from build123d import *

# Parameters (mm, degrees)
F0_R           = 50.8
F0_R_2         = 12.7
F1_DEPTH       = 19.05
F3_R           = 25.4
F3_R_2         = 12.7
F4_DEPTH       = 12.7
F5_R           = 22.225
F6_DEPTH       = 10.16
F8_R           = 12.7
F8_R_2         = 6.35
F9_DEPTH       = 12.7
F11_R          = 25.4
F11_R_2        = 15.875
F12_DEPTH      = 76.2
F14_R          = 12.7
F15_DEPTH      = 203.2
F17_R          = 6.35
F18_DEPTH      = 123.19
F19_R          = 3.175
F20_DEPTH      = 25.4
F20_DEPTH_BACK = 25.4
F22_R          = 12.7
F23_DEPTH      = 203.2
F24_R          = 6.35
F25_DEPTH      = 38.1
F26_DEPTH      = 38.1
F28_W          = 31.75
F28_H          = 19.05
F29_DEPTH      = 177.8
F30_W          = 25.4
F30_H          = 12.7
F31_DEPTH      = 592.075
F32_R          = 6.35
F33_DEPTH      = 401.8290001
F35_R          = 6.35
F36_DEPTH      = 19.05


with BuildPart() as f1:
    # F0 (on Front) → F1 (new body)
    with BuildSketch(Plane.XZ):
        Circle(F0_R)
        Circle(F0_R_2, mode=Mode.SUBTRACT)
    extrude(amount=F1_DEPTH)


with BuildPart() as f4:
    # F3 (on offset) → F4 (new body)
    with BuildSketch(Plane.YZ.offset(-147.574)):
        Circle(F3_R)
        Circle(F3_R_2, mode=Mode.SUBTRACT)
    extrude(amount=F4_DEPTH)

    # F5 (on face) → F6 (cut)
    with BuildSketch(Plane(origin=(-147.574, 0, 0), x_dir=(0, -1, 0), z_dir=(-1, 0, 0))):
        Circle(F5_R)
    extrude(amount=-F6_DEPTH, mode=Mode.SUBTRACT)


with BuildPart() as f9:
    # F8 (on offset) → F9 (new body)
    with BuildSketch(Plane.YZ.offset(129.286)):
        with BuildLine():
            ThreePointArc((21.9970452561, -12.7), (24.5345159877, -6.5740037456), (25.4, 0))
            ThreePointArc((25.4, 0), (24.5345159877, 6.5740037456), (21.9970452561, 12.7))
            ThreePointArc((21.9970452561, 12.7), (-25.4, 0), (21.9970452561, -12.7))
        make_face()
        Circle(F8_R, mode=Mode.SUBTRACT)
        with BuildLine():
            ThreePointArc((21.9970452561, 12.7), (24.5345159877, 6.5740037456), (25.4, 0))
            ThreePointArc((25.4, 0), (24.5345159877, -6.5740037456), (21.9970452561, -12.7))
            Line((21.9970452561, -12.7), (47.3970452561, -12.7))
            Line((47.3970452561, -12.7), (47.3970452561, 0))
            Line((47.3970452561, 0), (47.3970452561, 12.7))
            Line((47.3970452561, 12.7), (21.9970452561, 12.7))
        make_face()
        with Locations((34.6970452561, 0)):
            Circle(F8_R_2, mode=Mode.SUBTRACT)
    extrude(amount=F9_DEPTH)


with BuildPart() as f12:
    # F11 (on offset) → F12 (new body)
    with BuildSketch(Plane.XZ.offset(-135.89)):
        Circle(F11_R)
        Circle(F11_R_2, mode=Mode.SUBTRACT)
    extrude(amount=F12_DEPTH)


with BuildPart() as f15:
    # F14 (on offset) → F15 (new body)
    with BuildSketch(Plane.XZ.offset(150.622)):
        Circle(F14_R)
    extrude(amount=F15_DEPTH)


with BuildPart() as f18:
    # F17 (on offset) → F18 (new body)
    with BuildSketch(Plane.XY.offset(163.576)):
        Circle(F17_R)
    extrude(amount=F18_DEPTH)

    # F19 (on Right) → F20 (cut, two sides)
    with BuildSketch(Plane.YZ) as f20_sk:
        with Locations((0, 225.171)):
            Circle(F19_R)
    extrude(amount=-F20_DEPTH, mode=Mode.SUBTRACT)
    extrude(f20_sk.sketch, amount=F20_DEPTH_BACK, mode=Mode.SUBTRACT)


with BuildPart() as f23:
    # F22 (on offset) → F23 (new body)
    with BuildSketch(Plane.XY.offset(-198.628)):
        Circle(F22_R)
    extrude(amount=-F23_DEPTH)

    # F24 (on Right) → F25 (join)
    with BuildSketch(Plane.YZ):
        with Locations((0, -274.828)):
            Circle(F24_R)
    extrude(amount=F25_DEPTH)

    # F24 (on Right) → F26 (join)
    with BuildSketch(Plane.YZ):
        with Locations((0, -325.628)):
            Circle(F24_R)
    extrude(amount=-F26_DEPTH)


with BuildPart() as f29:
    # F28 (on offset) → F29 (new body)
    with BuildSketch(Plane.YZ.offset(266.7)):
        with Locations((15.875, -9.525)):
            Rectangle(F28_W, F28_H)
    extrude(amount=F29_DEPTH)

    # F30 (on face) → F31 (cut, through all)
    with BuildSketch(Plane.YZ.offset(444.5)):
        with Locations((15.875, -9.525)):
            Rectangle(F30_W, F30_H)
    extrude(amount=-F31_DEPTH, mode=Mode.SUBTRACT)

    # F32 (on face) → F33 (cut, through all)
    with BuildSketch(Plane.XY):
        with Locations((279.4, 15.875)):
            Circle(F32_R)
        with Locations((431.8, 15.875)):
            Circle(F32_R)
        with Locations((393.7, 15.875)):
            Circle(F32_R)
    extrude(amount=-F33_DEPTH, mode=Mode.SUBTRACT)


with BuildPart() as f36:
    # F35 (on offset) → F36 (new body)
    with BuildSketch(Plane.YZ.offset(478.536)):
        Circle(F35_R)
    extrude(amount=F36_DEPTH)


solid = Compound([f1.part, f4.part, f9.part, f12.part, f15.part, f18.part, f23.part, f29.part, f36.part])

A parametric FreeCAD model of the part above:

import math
import FreeCAD as App
import Part
import Sketcher
from FreeCAD import Vector
Q = App.Units.Quantity

doc = App.newDocument("Part")
body = doc.addObject("PartDesign::Body", "Body")

sketch1 = body.newObject("Sketcher::SketchObject", "Sketch")
sketch1.AttachmentSupport = (doc.getObject("XZ_Plane"), [""])
sketch1.MapMode = "FlatFace"
sketch1.addGeometry([
    Part.Circle(Vector(0, 0, 0), Vector(0, 0, 1), 51),
    Part.Circle(Vector(0, 0, 0), Vector(0, 0, 1), 13),
], False)
sketch1.addConstraint([
    Sketcher.Constraint("Coincident", 0, 3, -1, 1),
    Sketcher.Constraint("Coincident", 1, 3, -1, 1),
    Sketcher.Constraint("Diameter", 0, Q("4 in")),
    Sketcher.Constraint("Diameter", 1, Q("1 in")),
])
pad1 = body.newObject("PartDesign::Pad", "Pad")
pad1.Profile = sketch1
pad1.Length = Q("0.75 in")
body2 = doc.addObject("PartDesign::Body", "Body001")

sketch2 = body2.newObject("Sketcher::SketchObject", "Sketch001")
sketch2.AttachmentSupport = (doc.getObject("YZ_Plane001"), [""])
sketch2.MapMode = "FlatFace"
sketch2.AttachmentOffset = App.Placement(Vector(0, 0, -5.81 * 25.4), App.Rotation())
sketch2.addGeometry([
    Part.Circle(Vector(0, 0, 0), Vector(0, 0, 1), 25),
    Part.Circle(Vector(0, 0, 0), Vector(0, 0, 1), 13),
], False)
sketch2.addConstraint([
    Sketcher.Constraint("Coincident", 0, 3, -1, 1),
    Sketcher.Constraint("Coincident", 1, 3, -1, 1),
    Sketcher.Constraint("Diameter", 0, Q("2 in")),
    Sketcher.Constraint("Diameter", 1, Q("1 in")),
])
pad2 = body2.newObject("PartDesign::Pad", "Pad001")
pad2.Profile = sketch2
pad2.Length = Q("0.5 in")

sketch3 = body2.newObject("Sketcher::SketchObject", "Sketch002")
sketch3.AttachmentSupport = (doc.getObject("YZ_Plane001"), [""])
sketch3.MapMode = "FlatFace"
sketch3.AttachmentOffset = App.Placement(Vector(0, 0, -5.81 * 25.4), App.Rotation())
sketch3.addGeometry(Part.Circle(Vector(0, 0, 0), Vector(0, 0, 1), 22), False)
sketch3.addConstraint([
    Sketcher.Constraint("Coincident", 0, 3, -1, 1),
    Sketcher.Constraint("Diameter", 0, Q("1.75 in")),
])
pocket1 = body2.newObject("PartDesign::Pocket", "Pocket")
pocket1.Profile = sketch3
pocket1.Length = Q("0.4 in")
pocket1.Reversed = True
body3 = doc.addObject("PartDesign::Body", "Body002")

sketch4 = body3.newObject("Sketcher::SketchObject", "Sketch003")
sketch4.AttachmentSupport = (doc.getObject("YZ_Plane002"), [""])
sketch4.MapMode = "FlatFace"
sketch4.AttachmentOffset = App.Placement(Vector(0, 0, 5.09 * 25.4), App.Rotation())
sketch4.addGeometry([
    Part.ArcOfCircle(Part.Circle(Vector(0, 0, 0), Vector(0, 0, 1), 25), math.radians(30), math.radians(330)),
    Part.LineSegment(Vector(22, -13, 0), Vector(47, -13, 0)),
    Part.LineSegment(Vector(47, -13, 0), Vector(47, 13, 0)),
    Part.LineSegment(Vector(47, 13, 0), Vector(22, 13, 0)),
    Part.Circle(Vector(0, 0, 0), Vector(0, 0, 1), 13),
    Part.Circle(Vector(35, 0, 0), Vector(0, 0, 1), 6),
], False)
sketch4.addConstraint([
    Sketcher.Constraint("Coincident", 0, 2, 1, 1),
    Sketcher.Constraint("Coincident", 1, 2, 2, 1),
    Sketcher.Constraint("Coincident", 2, 2, 3, 1),
    Sketcher.Constraint("Coincident", 3, 2, 0, 1),
    Sketcher.Constraint("Horizontal", 1),
    Sketcher.Constraint("Vertical", 2),
    Sketcher.Constraint("Horizontal", 3),
    Sketcher.Constraint("Coincident", 0, 3, -1, 1),
    Sketcher.Constraint("Coincident", 4, 3, -1, 1),
    Sketcher.Constraint("PointOnObject", 5, 3, -1),
    Sketcher.Constraint("Vertical", 0, 2, 3, 2),
    Sketcher.Constraint("Equal", 3, 2),
    Sketcher.Constraint("Diameter", 4, Q("1 in")),
    Sketcher.Constraint("Radius", 0, Q("1 in")),
    Sketcher.Constraint("Diameter", 5, Q("0.5 in")),
    Sketcher.Constraint("DistanceX", 1, 1, 1, 2, Q("1 in")),
    Sketcher.Constraint("DistanceX", 0, 2, 5, 3, Q("0.5 in")),
])
pad3 = body3.newObject("PartDesign::Pad", "Pad002")
pad3.Profile = sketch4
pad3.Length = Q("0.5 in")
body4 = doc.addObject("PartDesign::Body", "Body003")

sketch5 = body4.newObject("Sketcher::SketchObject", "Sketch004")
sketch5.AttachmentSupport = (doc.getObject("XZ_Plane003"), [""])
sketch5.MapMode = "FlatFace"
sketch5.AttachmentOffset = App.Placement(Vector(0, 0, -5.35 * 25.4), App.Rotation())
sketch5.addGeometry([
    Part.Circle(Vector(0, 0, 0), Vector(0, 0, 1), 25),
    Part.Circle(Vector(0, 0, 0), Vector(0, 0, 1), 16),
], False)
sketch5.addConstraint([
    Sketcher.Constraint("Coincident", 0, 3, -1, 1),
    Sketcher.Constraint("Coincident", 1, 3, -1, 1),
    Sketcher.Constraint("Diameter", 0, Q("2 in")),
    Sketcher.Constraint("Diameter", 1, Q("1.25 in")),
])
pad4 = body4.newObject("PartDesign::Pad", "Pad003")
pad4.Profile = sketch5
pad4.Length = Q("3 in")
body5 = doc.addObject("PartDesign::Body", "Body004")

sketch6 = body5.newObject("Sketcher::SketchObject", "Sketch005")
sketch6.AttachmentSupport = (doc.getObject("XZ_Plane004"), [""])
sketch6.MapMode = "FlatFace"
sketch6.AttachmentOffset = App.Placement(Vector(0, 0, 5.93 * 25.4), App.Rotation())
sketch6.addGeometry(Part.Circle(Vector(0, 0, 0), Vector(0, 0, 1), 13), False)
sketch6.addConstraint([
    Sketcher.Constraint("Coincident", 0, 3, -1, 1),
    Sketcher.Constraint("Diameter", 0, Q("1 in")),
])
pad5 = body5.newObject("PartDesign::Pad", "Pad004")
pad5.Profile = sketch6
pad5.Length = Q("8 in")
body6 = doc.addObject("PartDesign::Body", "Body005")

sketch7 = body6.newObject("Sketcher::SketchObject", "Sketch006")
sketch7.AttachmentSupport = (doc.getObject("XY_Plane005"), [""])
sketch7.MapMode = "FlatFace"
sketch7.AttachmentOffset = App.Placement(Vector(0, 0, 6.44 * 25.4), App.Rotation())
sketch7.addGeometry(Part.Circle(Vector(0, 0, 0), Vector(0, 0, 1), 6), False)
sketch7.addConstraint([
    Sketcher.Constraint("Coincident", 0, 3, -1, 1),
    Sketcher.Constraint("Diameter", 0, Q("0.5 in")),
])
pad6 = body6.newObject("PartDesign::Pad", "Pad005")
pad6.Profile = sketch7
pad6.Length = Q("4.85 in")

sketch8 = body6.newObject("Sketcher::SketchObject", "Sketch007")
sketch8.AttachmentSupport = (doc.getObject("YZ_Plane005"), [""])
sketch8.MapMode = "FlatFace"
sketch8.addGeometry(Part.Circle(Vector(0, 225.2, 0), Vector(0, 0, 1), 3.2), False)
sketch8.addConstraint([
    Sketcher.Constraint("PointOnObject", 0, 3, -2),
    Sketcher.Constraint("Diameter", 0, Q("0.25 in")),
    Sketcher.Constraint("DistanceY", -1, 1, 0, 3, Q("8.865 in")),
])
pocket2 = body6.newObject("PartDesign::Pocket", "Pocket001")
pocket2.Profile = sketch8
pocket2.Type = "ThroughAll"
pocket2.Midplane = True
body7 = doc.addObject("PartDesign::Body", "Body006")

sketch9 = body7.newObject("Sketcher::SketchObject", "Sketch008")
sketch9.AttachmentSupport = (doc.getObject("XY_Plane006"), [""])
sketch9.MapMode = "FlatFace"
sketch9.AttachmentOffset = App.Placement(Vector(0, 0, -7.82 * 25.4), App.Rotation())
sketch9.addGeometry(Part.Circle(Vector(0, 0, 0), Vector(0, 0, 1), 13), False)
sketch9.addConstraint([
    Sketcher.Constraint("Coincident", 0, 3, -1, 1),
    Sketcher.Constraint("Diameter", 0, Q("1 in")),
])
pad7 = body7.newObject("PartDesign::Pad", "Pad006")
pad7.Profile = sketch9
pad7.Length = Q("8 in")
pad7.Reversed = True

sketch10 = body7.newObject("Sketcher::SketchObject", "Sketch009")
sketch10.AttachmentSupport = (doc.getObject("YZ_Plane006"), [""])
sketch10.MapMode = "FlatFace"
sketch10.addGeometry(Part.Circle(Vector(0, -275, 0), Vector(0, 0, 1), 6), False)
sketch10.addConstraint([
    Sketcher.Constraint("PointOnObject", 0, 3, -2),
    Sketcher.Constraint("Diameter", 0, Q("0.5 in")),
    Sketcher.Constraint("DistanceY", 0, 3, -1, 1, Q("10.82 in")),
])
pad8 = body7.newObject("PartDesign::Pad", "Pad007")
pad8.Profile = sketch10
pad8.Length = Q("1.5 in")

sketch11 = body7.newObject("Sketcher::SketchObject", "Sketch010")
sketch11.AttachmentSupport = (doc.getObject("YZ_Plane006"), [""])
sketch11.MapMode = "FlatFace"
sketch11.addGeometry(Part.Circle(Vector(0, -326, 0), Vector(0, 0, 1), 6), False)
sketch11.addConstraint([
    Sketcher.Constraint("PointOnObject", 0, 3, -2),
    Sketcher.Constraint("Diameter", 0, Q("0.5 in")),
    Sketcher.Constraint("DistanceY", 0, 3, -1, 1, Q("12.82 in")),
])
pad9 = body7.newObject("PartDesign::Pad", "Pad008")
pad9.Profile = sketch11
pad9.Length = Q("1.5 in")
pad9.Reversed = True
body8 = doc.addObject("PartDesign::Body", "Body007")

sketch12 = body8.newObject("Sketcher::SketchObject", "Sketch011")
sketch12.AttachmentSupport = (doc.getObject("YZ_Plane007"), [""])
sketch12.MapMode = "FlatFace"
sketch12.AttachmentOffset = App.Placement(Vector(0, 0, 10.5 * 25.4), App.Rotation())
sketch12.addGeometry([
    Part.LineSegment(Vector(0, 0, 0), Vector(0, -19, 0)),
    Part.LineSegment(Vector(0, -19, 0), Vector(32, -19, 0)),
    Part.LineSegment(Vector(32, -19, 0), Vector(32, 0, 0)),
    Part.LineSegment(Vector(32, 0, 0), Vector(0, 0, 0)),
], False)
sketch12.addConstraint([
    Sketcher.Constraint("Coincident", 0, 2, 1, 1),
    Sketcher.Constraint("Coincident", 1, 2, 2, 1),
    Sketcher.Constraint("Coincident", 2, 2, 3, 1),
    Sketcher.Constraint("Coincident", 3, 2, 0, 1),
    Sketcher.Constraint("Vertical", 0),
    Sketcher.Constraint("Horizontal", 1),
    Sketcher.Constraint("Vertical", 2),
    Sketcher.Constraint("Horizontal", 3),
    Sketcher.Constraint("Coincident", 3, 2, -1, 1),
    Sketcher.Constraint("DistanceX", 1, 1, 1, 2, Q("1.25 in")),
    Sketcher.Constraint("DistanceY", 0, 2, 0, 1, Q("0.75 in")),
])
pad10 = body8.newObject("PartDesign::Pad", "Pad009")
pad10.Profile = sketch12
pad10.Length = Q("7 in")

sketch13 = body8.newObject("Sketcher::SketchObject", "Sketch012")
sketch13.AttachmentSupport = (doc.getObject("YZ_Plane007"), [""])
sketch13.MapMode = "FlatFace"
sketch13.AttachmentOffset = App.Placement(Vector(0, 0, 17.5 * 25.4), App.Rotation())
sketch13.addGeometry([
    Part.LineSegment(Vector(3, -3, 0), Vector(3, -16, 0)),
    Part.LineSegment(Vector(3, -16, 0), Vector(29, -16, 0)),
    Part.LineSegment(Vector(29, -16, 0), Vector(29, -3, 0)),
    Part.LineSegment(Vector(29, -3, 0), Vector(3, -3, 0)),
], False)
sketch13.addConstraint([
    Sketcher.Constraint("Coincident", 0, 2, 1, 1),
    Sketcher.Constraint("Coincident", 1, 2, 2, 1),
    Sketcher.Constraint("Coincident", 2, 2, 3, 1),
    Sketcher.Constraint("Coincident", 3, 2, 0, 1),
    Sketcher.Constraint("Vertical", 0),
    Sketcher.Constraint("Horizontal", 1),
    Sketcher.Constraint("Vertical", 2),
    Sketcher.Constraint("Horizontal", 3),
    Sketcher.Constraint("DistanceX", 1, 1, 1, 2, Q("1 in")),
    Sketcher.Constraint("DistanceY", 0, 2, 0, 1, Q("0.5 in")),
    Sketcher.Constraint("DistanceX", -1, 1, 0, 2, Q("0.125 in")),
    Sketcher.Constraint("DistanceY", 0, 2, -1, 1, Q("0.625 in")),
])
pocket3 = body8.newObject("PartDesign::Pocket", "Pocket002")
pocket3.Profile = sketch13
pocket3.Type = "ThroughAll"

sketch14 = body8.newObject("Sketcher::SketchObject", "Sketch013")
sketch14.AttachmentSupport = (doc.getObject("XY_Plane007"), [""])
sketch14.MapMode = "FlatFace"
sketch14.addGeometry([
    Part.Circle(Vector(279, 16, 0), Vector(0, 0, 1), 6),
    Part.Circle(Vector(432, 16, 0), Vector(0, 0, 1), 6),
    Part.Circle(Vector(394, 16, 0), Vector(0, 0, 1), 6),
], False)
sketch14.addConstraint([
    Sketcher.Constraint("Equal", 0, 1),
    Sketcher.Constraint("Equal", 1, 2),
    Sketcher.Constraint("Horizontal", 0, 3, 1, 3),
    Sketcher.Constraint("Horizontal", 1, 3, 2, 3),
    Sketcher.Constraint("Diameter", 0, Q("0.5 in")),
    Sketcher.Constraint("DistanceX", -1, 1, 0, 3, Q("11 in")),
    Sketcher.Constraint("DistanceX", -1, 1, 1, 3, Q("17 in")),
    Sketcher.Constraint("DistanceX", -1, 1, 2, 3, Q("15.5 in")),
    Sketcher.Constraint("DistanceY", -1, 1, 0, 3, Q("0.625 in")),
])
pocket4 = body8.newObject("PartDesign::Pocket", "Pocket003")
pocket4.Profile = sketch14
pocket4.Type = "ThroughAll"
body9 = doc.addObject("PartDesign::Body", "Body008")

sketch15 = body9.newObject("Sketcher::SketchObject", "Sketch014")
sketch15.AttachmentSupport = (doc.getObject("YZ_Plane008"), [""])
sketch15.MapMode = "FlatFace"
sketch15.AttachmentOffset = App.Placement(Vector(0, 0, 18.84 * 25.4), App.Rotation())
sketch15.addGeometry(Part.Circle(Vector(0, 0, 0), Vector(0, 0, 1), 6), False)
sketch15.addConstraint([
    Sketcher.Constraint("Coincident", 0, 3, -1, 1),
    Sketcher.Constraint("Diameter", 0, Q("0.5 in")),
])
pad11 = body9.newObject("PartDesign::Pad", "Pad010")
pad11.Profile = sketch15
pad11.Length = Q("0.75 in")

doc.recompute()
